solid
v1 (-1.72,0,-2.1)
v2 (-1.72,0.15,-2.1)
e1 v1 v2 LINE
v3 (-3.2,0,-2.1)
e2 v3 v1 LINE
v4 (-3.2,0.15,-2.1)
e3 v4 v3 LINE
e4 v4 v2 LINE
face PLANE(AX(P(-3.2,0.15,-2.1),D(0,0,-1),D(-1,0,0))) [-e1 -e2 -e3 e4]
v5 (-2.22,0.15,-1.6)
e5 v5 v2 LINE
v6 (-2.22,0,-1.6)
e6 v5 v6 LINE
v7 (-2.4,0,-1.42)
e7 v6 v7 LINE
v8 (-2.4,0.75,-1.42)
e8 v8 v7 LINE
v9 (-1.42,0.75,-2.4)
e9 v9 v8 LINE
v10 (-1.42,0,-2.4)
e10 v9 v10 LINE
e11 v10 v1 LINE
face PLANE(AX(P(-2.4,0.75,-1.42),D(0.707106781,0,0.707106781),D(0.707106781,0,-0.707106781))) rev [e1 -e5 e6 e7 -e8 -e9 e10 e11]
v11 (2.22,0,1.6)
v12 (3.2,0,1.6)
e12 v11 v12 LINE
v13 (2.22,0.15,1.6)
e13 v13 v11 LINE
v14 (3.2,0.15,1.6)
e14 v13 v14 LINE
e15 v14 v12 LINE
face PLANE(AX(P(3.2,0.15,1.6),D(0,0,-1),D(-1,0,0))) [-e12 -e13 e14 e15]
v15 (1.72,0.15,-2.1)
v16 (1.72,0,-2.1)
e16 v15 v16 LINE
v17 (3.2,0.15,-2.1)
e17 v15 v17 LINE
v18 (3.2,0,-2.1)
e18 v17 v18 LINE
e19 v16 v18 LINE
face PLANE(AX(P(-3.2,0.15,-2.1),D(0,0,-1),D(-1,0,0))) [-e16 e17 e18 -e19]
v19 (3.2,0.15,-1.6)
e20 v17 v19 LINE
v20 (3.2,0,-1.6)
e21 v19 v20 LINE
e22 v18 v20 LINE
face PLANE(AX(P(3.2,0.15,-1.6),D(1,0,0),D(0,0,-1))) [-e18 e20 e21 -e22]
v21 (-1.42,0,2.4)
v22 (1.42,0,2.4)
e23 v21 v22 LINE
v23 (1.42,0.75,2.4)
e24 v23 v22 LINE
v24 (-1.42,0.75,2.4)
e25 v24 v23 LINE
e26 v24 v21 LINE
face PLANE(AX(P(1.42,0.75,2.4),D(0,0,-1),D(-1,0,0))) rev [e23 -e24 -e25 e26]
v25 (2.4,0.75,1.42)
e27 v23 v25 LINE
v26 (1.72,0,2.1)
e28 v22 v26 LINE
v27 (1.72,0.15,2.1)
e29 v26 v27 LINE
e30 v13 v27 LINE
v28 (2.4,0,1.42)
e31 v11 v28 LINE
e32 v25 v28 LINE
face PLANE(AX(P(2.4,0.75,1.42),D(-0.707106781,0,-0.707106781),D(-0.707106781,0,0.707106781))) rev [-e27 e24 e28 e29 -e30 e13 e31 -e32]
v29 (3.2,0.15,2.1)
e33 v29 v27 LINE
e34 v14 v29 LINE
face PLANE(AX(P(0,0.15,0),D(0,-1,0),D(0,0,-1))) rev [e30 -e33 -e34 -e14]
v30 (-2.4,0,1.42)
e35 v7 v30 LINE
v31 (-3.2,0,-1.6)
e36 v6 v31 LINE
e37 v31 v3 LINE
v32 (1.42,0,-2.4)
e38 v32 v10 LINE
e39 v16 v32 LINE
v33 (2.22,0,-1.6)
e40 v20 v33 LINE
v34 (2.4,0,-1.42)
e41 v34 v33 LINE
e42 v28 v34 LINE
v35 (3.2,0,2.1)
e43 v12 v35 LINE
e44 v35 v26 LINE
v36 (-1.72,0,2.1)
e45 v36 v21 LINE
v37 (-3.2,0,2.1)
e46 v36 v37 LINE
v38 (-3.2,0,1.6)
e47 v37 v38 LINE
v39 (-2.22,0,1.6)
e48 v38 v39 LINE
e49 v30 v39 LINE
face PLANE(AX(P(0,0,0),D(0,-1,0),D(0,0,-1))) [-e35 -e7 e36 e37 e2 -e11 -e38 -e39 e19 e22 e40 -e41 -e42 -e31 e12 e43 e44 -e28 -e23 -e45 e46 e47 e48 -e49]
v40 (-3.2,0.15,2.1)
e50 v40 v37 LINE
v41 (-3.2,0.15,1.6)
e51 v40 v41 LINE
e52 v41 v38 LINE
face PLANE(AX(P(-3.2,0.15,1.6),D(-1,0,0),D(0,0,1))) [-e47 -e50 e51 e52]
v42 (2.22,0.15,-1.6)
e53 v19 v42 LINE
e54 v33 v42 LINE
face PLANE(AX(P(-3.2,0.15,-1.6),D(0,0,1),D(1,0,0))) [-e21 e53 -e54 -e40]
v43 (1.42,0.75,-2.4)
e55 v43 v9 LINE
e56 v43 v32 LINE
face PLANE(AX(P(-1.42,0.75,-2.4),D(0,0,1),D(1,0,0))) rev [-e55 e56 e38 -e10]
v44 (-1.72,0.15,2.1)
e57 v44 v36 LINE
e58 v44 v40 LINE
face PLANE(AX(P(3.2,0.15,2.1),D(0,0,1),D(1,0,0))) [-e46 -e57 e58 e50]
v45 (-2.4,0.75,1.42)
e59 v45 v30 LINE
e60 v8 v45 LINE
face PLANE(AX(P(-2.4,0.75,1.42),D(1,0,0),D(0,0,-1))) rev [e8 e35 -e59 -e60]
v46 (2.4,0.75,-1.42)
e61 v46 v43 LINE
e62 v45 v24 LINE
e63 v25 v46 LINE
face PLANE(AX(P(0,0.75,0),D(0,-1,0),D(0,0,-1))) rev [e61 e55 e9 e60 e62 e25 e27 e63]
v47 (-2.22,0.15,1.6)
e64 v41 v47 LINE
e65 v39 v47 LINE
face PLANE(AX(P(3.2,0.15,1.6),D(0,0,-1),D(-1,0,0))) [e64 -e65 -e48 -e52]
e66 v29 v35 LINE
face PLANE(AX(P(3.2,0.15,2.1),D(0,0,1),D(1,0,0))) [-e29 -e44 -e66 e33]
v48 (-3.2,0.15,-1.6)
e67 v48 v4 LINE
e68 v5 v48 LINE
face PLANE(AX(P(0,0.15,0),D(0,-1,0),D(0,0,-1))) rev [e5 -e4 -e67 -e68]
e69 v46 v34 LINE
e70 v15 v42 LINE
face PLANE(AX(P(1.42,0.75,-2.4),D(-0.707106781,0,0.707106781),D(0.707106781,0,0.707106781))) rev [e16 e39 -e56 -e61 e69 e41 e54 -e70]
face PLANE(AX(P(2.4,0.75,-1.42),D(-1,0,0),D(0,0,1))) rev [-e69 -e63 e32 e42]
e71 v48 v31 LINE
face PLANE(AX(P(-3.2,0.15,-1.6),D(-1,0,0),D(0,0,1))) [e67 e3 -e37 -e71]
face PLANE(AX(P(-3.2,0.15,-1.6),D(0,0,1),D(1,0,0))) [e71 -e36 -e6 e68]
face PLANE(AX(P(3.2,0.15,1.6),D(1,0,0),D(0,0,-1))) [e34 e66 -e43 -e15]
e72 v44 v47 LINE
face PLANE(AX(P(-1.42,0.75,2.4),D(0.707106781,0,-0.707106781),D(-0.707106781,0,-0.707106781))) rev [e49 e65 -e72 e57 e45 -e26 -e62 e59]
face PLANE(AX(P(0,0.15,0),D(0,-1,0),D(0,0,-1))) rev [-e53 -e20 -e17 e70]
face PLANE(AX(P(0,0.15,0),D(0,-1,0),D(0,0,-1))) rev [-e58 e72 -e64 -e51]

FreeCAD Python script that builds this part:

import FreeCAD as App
import Part
import Sketcher

V = App.Vector
Q = App.Units.Quantity


def add_polygon(sketch, points):
    """Adds a closed chain of lines whose ends are joined by coincident constraints."""
    first, n = sketch.GeometryCount, len(points)
    for a, b in zip(points, points[1:] + points[:1]):
        sketch.addGeometry(Part.LineSegment(App.Vector(*a, 0), App.Vector(*b, 0)), False)
    for i in range(n):
        sketch.addConstraint(Sketcher.Constraint("Coincident", first + i, 2, first + (i + 1) % n, 1))

doc = App.newDocument("Part")
body = doc.addObject("PartDesign::Body", "Body")

sketch1 = body.newObject("Sketcher::SketchObject", "Sketch")
sketch1.AttachmentSupport = (doc.getObject("XZ_Plane"), [""])
sketch1.MapMode = "FlatFace"
add_polygon(sketch1, [(1.4, -2.4), (-1.4, -2.4), (-2.4, -1.4), (-2.4, 1.4), (-1.4, 2.4), (1.4, 2.4), (2.4, 1.4), (2.4, -1.4)])
sketch1.addConstraint([
    Sketcher.Constraint("Horizontal", 0),
    Sketcher.Constraint("Vertical", 2),
    Sketcher.Constraint("Horizontal", 4),
    Sketcher.Constraint("Vertical", 6),
    Sketcher.Constraint("Symmetric", 0, 2, 4, 2, -1, 1),
    Sketcher.Constraint("Symmetric", 1, 2, 5, 2, -1, 1),
    Sketcher.Constraint("Perpendicular", 1, 3),
    Sketcher.Constraint("Perpendicular", 5, 7),
    Sketcher.Constraint("Horizontal", 2, 2, 5, 2),
    Sketcher.Constraint("Horizontal", 1, 2, 6, 2),
    Sketcher.Constraint("Vertical", 0, 2, 3, 2),
    Sketcher.Constraint("Equal", 4, 2),
    Sketcher.Constraint("DistanceX", 0, 2, 0, 1, Q("2.84 mm")),
    Sketcher.Constraint("DistanceY", 0, 2, -1, 1, Q("2.4 mm")),
])
pad1 = body.newObject("PartDesign::Pad", "Pad")
pad1.Profile = sketch1
pad1.Length = 0.75
pad1.Reversed = True

sketch2 = body.newObject("Sketcher::SketchObject", "Sketch001")
sketch2.AttachmentSupport = (doc.getObject("XZ_Plane"), [""])
sketch2.MapMode = "FlatFace"
add_polygon(sketch2, [(-3.2, 2.1), (-3.2, 1.6), (3.2, 1.6), (3.2, 2.1)])
add_polygon(sketch2, [(-3.2, -1.6), (-3.2, -2.1), (3.2, -2.1), (3.2, -1.6)])
sketch2.addConstraint([
    Sketcher.Constraint("Vertical", 0),
    Sketcher.Constraint("Horizontal", 1),
    Sketcher.Constraint("Vertical", 2),
    Sketcher.Constraint("Horizontal", 3),
    Sketcher.Constraint("Vertical", 4),
    Sketcher.Constraint("Horizontal", 5),
    Sketcher.Constraint("Vertical", 6),
    Sketcher.Constraint("Horizontal", 7),
    Sketcher.Constraint("Symmetric", 2, 2, 4, 2, -1, 1),
    Sketcher.Constraint("Symmetric", 0, 2, 6, 2, -1, 1),
    Sketcher.Constraint("Vertical", 3, 2, 4, 2),
    Sketcher.Constraint("DistanceX", 1, 1, 1, 2, Q("6.4 mm")),
    Sketcher.Constraint("DistanceY", 0, 2, 0, 1, Q("0.5 mm")),
    Sketcher.Constraint("DistanceY", -1, 1, 0, 2, Q("1.6 mm")),
])
pad2 = body.newObject("PartDesign::Pad", "Pad001")
pad2.Profile = sketch2
pad2.Length = 0.15
pad2.Reversed = True

doc.recompute()
